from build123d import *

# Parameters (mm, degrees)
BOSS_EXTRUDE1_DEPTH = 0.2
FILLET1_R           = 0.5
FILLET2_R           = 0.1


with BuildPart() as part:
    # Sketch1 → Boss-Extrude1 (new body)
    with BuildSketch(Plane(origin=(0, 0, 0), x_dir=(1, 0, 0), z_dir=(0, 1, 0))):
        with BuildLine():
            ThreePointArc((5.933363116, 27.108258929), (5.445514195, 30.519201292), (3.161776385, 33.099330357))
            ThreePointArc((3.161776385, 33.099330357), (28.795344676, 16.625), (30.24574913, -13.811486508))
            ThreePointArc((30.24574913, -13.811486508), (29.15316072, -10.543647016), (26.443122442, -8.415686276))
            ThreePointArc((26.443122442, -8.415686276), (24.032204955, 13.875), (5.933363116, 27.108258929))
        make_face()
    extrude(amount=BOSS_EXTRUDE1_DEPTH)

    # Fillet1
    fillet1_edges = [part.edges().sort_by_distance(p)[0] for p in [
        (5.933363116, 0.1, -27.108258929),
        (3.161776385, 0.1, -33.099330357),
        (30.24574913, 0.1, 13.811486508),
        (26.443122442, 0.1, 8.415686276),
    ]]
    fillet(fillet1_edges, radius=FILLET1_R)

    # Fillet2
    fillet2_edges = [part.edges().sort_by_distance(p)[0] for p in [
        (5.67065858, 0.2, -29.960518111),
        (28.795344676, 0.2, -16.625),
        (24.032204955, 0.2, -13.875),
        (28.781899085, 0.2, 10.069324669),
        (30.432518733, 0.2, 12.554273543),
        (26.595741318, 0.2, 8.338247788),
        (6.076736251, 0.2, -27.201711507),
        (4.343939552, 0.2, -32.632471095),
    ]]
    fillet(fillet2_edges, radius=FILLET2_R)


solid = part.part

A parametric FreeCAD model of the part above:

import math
import FreeCAD as App
import Part
import Sketcher


def edges_at(feature, points):
    """Names of the edges that pass closest to the given points."""
    edges = feature.Shape.Edges
    near = lambda p: min(range(len(edges)), key=lambda i: edges[i].distToShape(Part.Vertex(*p))[0])
    return sorted({f"Edge{near(p) + 1}" for p in points})

doc = App.newDocument("Part")
body = doc.addObject("PartDesign::Body", "Body")

# Sketch on XZ plane
sketch1 = body.newObject("Sketcher::SketchObject", "Sketch")
sketch1.AttachmentSupport = (doc.getObject("XZ_Plane"), [""])
sketch1.MapMode = "FlatFace"
sketch1.addGeometry([
    Part.ArcOfCircle(Part.Circle(App.Vector(0, -28, 0), App.Vector(0, 0, 1), 6), math.radians(-58), math.radians(9)),
    Part.ArcOfCircle(Part.Circle(App.Vector(0, 0, 0), App.Vector(0, 0, 1), 28), math.radians(-78), math.radians(18)),
    Part.ArcOfCircle(Part.Circle(App.Vector(24, 14, 0), App.Vector(0, 0, 1), 6), math.radians(-69), math.radians(-2)),
    Part.ArcOfCircle(Part.Circle(App.Vector(0, 0, 0), App.Vector(0, 0, 1), 33), math.radians(-85), math.radians(25)),
], False)
sketch1.addConstraint([
    Sketcher.Constraint("Coincident", 0, 2, 1, 1),
    Sketcher.Constraint("Coincident", 1, 2, 2, 1),
    Sketcher.Constraint("Coincident", 2, 2, 3, 2),
    Sketcher.Constraint("Coincident", 3, 1, 0, 1),
    Sketcher.Constraint("Coincident", 1, 3, -1, 1),
    Sketcher.Constraint("Coincident", 3, 3, -1, 1),
    Sketcher.Constraint("Equal", 0, 2),
    Sketcher.Constraint("PointOnObject", 0, 3, -2),
    Sketcher.Constraint("Radius", 0, 6.0),
    Sketcher.Constraint("Radius", 1, 27.75),
    Sketcher.Constraint("Radius", 3, 33.25),
    Sketcher.Constraint("DistanceY", 0, 3, -1, 1, 28.0),
    Sketcher.Constraint("DistanceY", -1, 1, 2, 3, 14.0),
    Sketcher.Constraint("DistanceY", 1, 2, 2, 2, 5.3958),
])
pad1 = body.newObject("PartDesign::Pad", "Pad")
pad1.Profile = sketch1
pad1.Length = 0.2
pad1.Reversed = True
doc.recompute()

fillet = body.newObject("PartDesign::Fillet", "Fillet")
fillet.Base = (pad1, edges_at(pad1, [
    (5.933, 0.1, -27.108),
    (3.162, 0.1, -33.099),
    (30.246, 0.1, 13.811),
    (26.443, 0.1, 8.416),
]))
fillet.Radius = 0.5
doc.recompute()

fillet2 = body.newObject("PartDesign::Fillet", "Fillet001")
fillet2.Base = (fillet, edges_at(fillet, [
    (5.671, 0.2, -29.961),
    (28.795, 0.2, -16.625),
    (24.032, 0.2, -13.875),
    (28.782, 0.2, 10.069),
    (30.433, 0.2, 12.554),
    (26.596, 0.2, 8.338),
    (6.077, 0.2, -27.202),
    (4.344, 0.2, -32.632),
]))
fillet2.Radius = 0.1

doc.recompute()
